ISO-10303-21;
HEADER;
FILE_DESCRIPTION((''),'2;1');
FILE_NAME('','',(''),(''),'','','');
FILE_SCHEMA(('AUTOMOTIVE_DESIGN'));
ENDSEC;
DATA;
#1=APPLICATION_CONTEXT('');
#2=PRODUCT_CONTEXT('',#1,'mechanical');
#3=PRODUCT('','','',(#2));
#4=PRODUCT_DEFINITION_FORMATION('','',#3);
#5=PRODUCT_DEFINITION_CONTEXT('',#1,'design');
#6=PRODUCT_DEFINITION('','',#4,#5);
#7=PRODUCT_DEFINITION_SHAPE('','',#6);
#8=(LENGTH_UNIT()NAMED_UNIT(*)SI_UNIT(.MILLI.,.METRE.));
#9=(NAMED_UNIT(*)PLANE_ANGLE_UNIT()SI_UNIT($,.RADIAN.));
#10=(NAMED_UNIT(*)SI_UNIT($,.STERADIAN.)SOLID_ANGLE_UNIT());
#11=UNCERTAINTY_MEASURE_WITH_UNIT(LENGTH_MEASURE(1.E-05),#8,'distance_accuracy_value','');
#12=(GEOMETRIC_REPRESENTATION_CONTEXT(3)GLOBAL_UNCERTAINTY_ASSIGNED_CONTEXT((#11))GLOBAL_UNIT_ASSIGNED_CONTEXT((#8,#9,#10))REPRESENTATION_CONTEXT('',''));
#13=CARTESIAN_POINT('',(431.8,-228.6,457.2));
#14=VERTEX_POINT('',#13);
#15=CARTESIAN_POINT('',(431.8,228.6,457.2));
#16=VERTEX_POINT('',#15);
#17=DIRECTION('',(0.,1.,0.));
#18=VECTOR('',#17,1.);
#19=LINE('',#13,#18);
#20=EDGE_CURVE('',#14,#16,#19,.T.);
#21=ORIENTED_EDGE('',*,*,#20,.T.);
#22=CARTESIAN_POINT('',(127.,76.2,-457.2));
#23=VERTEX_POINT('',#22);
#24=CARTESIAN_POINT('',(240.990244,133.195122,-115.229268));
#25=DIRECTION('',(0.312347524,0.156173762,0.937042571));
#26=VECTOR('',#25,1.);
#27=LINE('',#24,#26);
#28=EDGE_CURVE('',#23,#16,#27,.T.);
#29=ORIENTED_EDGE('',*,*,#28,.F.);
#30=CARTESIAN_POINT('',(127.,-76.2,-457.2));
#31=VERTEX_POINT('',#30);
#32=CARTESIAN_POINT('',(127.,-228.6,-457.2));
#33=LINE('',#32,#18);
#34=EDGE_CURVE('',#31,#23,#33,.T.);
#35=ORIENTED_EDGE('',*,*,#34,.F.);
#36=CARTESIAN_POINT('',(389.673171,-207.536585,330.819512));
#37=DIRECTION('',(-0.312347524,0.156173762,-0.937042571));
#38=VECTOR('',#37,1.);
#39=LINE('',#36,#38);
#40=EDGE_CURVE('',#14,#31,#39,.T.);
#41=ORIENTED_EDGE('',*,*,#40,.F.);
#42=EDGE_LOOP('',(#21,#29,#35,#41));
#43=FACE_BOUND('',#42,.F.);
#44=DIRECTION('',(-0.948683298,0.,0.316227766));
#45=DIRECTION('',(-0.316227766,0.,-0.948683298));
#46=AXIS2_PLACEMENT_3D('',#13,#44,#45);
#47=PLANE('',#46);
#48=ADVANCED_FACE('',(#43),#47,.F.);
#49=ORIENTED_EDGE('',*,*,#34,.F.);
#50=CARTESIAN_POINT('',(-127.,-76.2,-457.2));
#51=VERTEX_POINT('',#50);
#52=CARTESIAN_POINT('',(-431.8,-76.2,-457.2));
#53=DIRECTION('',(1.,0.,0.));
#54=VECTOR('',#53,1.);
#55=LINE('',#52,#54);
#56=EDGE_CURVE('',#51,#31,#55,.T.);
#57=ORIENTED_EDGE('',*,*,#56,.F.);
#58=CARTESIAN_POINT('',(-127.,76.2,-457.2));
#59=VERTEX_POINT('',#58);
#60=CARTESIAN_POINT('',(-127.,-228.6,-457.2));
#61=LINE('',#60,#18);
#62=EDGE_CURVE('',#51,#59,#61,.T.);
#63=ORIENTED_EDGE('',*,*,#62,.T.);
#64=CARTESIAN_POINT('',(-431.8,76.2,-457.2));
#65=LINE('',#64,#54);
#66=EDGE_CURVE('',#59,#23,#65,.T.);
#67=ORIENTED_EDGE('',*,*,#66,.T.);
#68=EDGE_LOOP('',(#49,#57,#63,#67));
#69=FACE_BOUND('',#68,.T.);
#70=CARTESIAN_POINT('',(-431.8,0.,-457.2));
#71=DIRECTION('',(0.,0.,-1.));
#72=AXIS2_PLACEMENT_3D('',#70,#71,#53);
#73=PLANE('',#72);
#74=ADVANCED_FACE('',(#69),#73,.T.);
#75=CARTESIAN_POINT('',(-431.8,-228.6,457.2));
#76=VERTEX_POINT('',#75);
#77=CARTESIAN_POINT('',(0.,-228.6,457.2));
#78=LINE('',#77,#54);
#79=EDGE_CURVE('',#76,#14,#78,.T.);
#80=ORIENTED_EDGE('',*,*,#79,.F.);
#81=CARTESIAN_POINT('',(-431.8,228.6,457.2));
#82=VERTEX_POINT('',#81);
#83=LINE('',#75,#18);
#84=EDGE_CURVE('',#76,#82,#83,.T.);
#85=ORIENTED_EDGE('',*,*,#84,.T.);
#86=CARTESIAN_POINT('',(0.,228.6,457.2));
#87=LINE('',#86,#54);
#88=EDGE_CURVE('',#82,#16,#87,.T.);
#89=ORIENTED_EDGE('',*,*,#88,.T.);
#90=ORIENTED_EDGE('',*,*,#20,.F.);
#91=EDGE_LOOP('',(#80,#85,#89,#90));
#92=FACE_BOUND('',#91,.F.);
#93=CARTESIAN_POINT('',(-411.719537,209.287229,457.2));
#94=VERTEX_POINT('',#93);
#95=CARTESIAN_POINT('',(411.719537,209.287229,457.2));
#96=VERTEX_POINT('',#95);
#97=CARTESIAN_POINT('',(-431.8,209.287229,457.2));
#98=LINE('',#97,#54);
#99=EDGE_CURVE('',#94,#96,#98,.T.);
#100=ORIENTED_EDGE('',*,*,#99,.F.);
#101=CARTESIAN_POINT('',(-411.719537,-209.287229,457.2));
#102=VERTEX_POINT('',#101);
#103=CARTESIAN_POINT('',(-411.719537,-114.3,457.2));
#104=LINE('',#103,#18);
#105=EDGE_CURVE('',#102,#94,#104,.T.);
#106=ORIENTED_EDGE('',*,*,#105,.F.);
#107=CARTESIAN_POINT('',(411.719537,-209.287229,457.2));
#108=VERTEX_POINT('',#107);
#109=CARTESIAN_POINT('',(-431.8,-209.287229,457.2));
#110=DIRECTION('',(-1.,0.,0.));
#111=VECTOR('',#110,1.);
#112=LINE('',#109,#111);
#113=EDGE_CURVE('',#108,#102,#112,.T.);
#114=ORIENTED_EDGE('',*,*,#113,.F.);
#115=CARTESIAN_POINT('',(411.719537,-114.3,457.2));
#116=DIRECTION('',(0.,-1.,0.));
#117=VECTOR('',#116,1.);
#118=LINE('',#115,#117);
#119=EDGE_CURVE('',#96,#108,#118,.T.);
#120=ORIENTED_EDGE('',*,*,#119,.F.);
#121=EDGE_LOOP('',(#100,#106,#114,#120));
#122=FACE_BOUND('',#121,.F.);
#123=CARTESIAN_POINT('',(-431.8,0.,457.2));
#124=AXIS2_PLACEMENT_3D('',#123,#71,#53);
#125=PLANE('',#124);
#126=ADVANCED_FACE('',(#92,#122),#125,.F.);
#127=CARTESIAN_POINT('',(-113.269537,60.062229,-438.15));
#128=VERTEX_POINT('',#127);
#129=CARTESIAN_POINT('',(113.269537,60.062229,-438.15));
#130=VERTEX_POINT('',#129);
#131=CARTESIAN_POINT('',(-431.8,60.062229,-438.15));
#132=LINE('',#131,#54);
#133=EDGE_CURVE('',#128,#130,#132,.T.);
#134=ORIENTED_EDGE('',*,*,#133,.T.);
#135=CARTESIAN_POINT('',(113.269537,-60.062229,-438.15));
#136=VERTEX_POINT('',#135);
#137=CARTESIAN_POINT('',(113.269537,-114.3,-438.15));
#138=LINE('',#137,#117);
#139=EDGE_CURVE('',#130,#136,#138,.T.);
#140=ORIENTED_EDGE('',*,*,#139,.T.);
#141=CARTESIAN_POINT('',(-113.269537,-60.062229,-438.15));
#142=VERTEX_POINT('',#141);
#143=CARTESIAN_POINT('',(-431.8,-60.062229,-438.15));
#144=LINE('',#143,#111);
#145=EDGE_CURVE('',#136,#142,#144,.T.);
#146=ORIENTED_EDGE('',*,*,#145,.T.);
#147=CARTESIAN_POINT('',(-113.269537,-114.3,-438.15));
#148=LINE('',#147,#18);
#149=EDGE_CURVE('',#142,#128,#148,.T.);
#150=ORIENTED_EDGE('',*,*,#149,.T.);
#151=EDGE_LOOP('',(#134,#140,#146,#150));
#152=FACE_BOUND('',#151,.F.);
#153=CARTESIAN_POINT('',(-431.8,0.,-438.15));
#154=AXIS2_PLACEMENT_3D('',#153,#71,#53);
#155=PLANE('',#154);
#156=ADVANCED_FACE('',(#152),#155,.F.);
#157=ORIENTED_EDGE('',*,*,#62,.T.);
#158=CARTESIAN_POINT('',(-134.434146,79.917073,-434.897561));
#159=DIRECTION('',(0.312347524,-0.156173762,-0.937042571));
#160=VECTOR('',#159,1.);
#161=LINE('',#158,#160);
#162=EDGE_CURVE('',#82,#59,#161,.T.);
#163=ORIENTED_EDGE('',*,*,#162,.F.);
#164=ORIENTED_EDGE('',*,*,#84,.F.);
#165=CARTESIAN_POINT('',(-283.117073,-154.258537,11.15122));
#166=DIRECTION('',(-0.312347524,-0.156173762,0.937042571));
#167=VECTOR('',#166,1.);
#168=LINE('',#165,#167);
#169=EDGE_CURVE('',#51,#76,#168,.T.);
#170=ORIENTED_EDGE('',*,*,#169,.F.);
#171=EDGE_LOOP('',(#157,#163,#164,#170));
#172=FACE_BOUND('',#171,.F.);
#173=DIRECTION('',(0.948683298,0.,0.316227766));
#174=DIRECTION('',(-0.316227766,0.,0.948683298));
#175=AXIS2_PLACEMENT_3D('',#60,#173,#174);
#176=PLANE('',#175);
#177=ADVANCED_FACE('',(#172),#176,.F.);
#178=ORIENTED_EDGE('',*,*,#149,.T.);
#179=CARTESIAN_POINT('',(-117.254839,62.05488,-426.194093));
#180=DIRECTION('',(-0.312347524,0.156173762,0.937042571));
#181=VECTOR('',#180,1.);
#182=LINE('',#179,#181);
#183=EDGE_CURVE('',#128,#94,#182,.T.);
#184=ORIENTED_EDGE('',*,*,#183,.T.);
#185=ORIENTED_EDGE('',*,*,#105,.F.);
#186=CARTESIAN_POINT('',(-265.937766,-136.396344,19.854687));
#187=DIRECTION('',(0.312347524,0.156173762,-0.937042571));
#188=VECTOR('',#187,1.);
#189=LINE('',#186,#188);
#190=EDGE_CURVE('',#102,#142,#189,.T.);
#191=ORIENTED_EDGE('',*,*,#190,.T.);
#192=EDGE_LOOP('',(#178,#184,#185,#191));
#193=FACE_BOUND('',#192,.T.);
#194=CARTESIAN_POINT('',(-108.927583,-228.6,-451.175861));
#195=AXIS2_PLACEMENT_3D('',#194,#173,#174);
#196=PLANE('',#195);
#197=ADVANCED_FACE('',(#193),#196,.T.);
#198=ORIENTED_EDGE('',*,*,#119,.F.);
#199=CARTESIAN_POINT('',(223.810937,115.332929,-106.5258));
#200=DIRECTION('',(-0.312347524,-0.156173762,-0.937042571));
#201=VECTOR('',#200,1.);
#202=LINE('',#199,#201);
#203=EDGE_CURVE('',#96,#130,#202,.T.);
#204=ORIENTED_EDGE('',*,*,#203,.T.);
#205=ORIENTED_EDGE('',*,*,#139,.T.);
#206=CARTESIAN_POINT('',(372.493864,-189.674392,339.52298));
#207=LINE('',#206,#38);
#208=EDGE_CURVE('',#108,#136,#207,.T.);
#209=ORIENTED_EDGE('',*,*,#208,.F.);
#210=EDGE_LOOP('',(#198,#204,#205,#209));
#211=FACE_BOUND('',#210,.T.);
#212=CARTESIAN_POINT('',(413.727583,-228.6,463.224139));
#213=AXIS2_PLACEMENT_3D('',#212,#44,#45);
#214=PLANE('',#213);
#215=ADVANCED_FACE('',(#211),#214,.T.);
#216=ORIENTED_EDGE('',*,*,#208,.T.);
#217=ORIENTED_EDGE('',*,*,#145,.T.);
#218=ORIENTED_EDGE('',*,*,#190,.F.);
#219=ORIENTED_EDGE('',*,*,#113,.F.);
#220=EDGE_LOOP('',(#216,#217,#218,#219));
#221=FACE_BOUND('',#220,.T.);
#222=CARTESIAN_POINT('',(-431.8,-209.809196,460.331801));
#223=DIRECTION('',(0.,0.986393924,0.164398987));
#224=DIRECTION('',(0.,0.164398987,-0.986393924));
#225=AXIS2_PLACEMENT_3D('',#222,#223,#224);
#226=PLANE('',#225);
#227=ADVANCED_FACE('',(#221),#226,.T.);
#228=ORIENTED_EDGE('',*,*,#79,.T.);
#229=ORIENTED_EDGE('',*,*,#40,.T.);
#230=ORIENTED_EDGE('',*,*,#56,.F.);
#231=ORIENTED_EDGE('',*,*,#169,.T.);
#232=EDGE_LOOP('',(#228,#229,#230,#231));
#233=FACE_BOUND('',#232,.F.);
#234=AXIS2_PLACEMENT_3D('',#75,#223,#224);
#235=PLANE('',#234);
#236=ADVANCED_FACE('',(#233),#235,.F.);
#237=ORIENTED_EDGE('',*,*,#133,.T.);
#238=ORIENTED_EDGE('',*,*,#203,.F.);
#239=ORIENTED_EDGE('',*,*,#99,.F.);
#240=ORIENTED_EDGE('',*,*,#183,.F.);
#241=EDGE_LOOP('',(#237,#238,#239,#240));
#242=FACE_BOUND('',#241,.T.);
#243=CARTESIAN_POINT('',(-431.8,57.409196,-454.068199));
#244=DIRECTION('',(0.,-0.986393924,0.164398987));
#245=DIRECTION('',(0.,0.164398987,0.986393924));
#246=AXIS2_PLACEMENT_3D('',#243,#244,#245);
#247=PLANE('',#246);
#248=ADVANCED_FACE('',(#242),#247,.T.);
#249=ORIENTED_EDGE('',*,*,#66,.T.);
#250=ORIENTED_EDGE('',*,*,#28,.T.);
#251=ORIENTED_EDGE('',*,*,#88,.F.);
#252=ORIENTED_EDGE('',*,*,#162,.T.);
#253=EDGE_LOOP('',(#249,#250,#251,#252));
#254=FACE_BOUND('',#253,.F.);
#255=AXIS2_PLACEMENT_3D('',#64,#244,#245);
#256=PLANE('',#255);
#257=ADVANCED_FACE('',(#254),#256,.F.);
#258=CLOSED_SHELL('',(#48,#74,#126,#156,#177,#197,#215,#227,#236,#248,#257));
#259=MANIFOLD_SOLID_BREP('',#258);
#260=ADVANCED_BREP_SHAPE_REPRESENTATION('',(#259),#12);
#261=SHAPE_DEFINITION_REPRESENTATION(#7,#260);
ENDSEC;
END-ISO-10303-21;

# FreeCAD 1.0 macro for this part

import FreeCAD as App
import Part
import Sketcher
Q = App.Units.Quantity


def faces_at(feature, points):
    """Names of the faces that lie closest to the given points."""
    faces = feature.Shape.Faces
    near = lambda p: min(range(len(faces)), key=lambda i: faces[i].distToShape(Part.Vertex(*p))[0])
    return sorted({f"Face{near(p) + 1}" for p in points})


def add_polygon(sketch, points):
    """Adds a closed chain of lines whose ends are joined by coincident constraints."""
    first, n = sketch.GeometryCount, len(points)
    for a, b in zip(points, points[1:] + points[:1]):
        sketch.addGeometry(Part.LineSegment(App.Vector(*a, 0), App.Vector(*b, 0)), False)
    for i in range(n):
        sketch.addConstraint(Sketcher.Constraint("Coincident", first + i, 2, first + (i + 1) % n, 1))

doc = App.newDocument("Part")
params = doc.addObject("Spreadsheet::Sheet", "Params")
for row, (alias, value) in enumerate([
    ("sketch1_width", "34 in"),
    ("sketch1_height", "36 in"),
    ("pad1_length", "18 in"),
    ("sketch2_width", "12 in"),
    ("sketch2_height", "36 in"),
    ("sketch3_width", "6 in"),
    ("sketch3_height", "36 in"),
    ("thickness_wall", "0.75 in"),
], start=1):
    params.set(f"A{row}", alias)
    params.set(f"B{row}", "=" + value)
    params.setAlias(f"B{row}", alias)

body = doc.addObject("PartDesign::Body", "Body")

# Sketch on XZ plane
sketch1 = body.newObject("Sketcher::SketchObject", "Sketch")
sketch1.AttachmentSupport = (doc.getObject("XZ_Plane"), [""])
sketch1.MapMode = "FlatFace"
add_polygon(sketch1, [(-432, 457), (-432, -457), (432, -457), (432, 457)])  # lines 0-3
sketch1.addConstraint([
    Sketcher.Constraint("Vertical", 0),
    Sketcher.Constraint("Horizontal", 1),
    Sketcher.Constraint("Vertical", 2),
    Sketcher.Constraint("Horizontal", 3),
    Sketcher.Constraint("Symmetric", 0, 2, 2, 2, -1, 1),
    Sketcher.Constraint("DistanceX", 1, 1, 1, 2, Q("34 in")),
    Sketcher.Constraint("DistanceY", 0, 2, 0, 1, Q("36 in")),
])
sketch1.setExpression("Constraints[9]", "Params.sketch1_width")
sketch1.setExpression("Constraints[10]", "Params.sketch1_height")
pad1 = body.newObject("PartDesign::Pad", "Pad")
pad1.Profile = sketch1
pad1.setExpression("Length", "Params.pad1_length")
pad1.Midplane = True

# Sketch on XZ plane
sketch2 = body.newObject("Sketcher::SketchObject", "Sketch001")
sketch2.AttachmentSupport = (doc.getObject("XZ_Plane"), [""])
sketch2.MapMode = "FlatFace"
sketch2.AttachmentOffset = App.Placement(App.Vector(0, 0, 9 * 25.4), App.Rotation())
add_polygon(sketch2, [(-127, -457), (-432, 457), (-432, -457)])  # lines 0-2
add_polygon(sketch2, [(432, -457), (432, 457), (127, -457)])  # lines 3-5
sketch2.addConstraint([
    Sketcher.Constraint("Vertical", 1),
    Sketcher.Constraint("Horizontal", 2),
    Sketcher.Constraint("Vertical", 3),
    Sketcher.Constraint("Horizontal", 5),
    Sketcher.Constraint("Symmetric", 1, 2, 3, 2, -1, 1),
    Sketcher.Constraint("Symmetric", 2, 2, 4, 2, -2),
    Sketcher.Constraint("Horizontal", 0, 2, 3, 2),
    Sketcher.Constraint("DistanceX", 2, 1, 2, 2, Q("12 in")),
    Sketcher.Constraint("DistanceY", 1, 2, 1, 1, Q("36 in")),
    Sketcher.Constraint("DistanceX", 0, 2, -1, 1, Q("17 in")),
])
sketch2.setExpression("Constraints[13]", "Params.sketch2_width")
sketch2.setExpression("Constraints[14]", "Params.sketch2_height")
pocket1 = body.newObject("PartDesign::Pocket", "Pocket")
pocket1.Profile = sketch2
pocket1.Type = "ThroughAll"

# Sketch on YZ plane
sketch3 = body.newObject("Sketcher::SketchObject", "Sketch002")
sketch3.AttachmentSupport = (doc.getObject("YZ_Plane"), [""])
sketch3.MapMode = "FlatFace"
sketch3.AttachmentOffset = App.Placement(App.Vector(0, 0, -17 * 25.4), App.Rotation())
add_polygon(sketch3, [(76, -457), (229, 457), (229, -457)])  # lines 0-2
add_polygon(sketch3, [(-229, -457), (-229, 457), (-76, -457)])  # lines 3-5
sketch3.addConstraint([
    Sketcher.Constraint("Vertical", 1),
    Sketcher.Constraint("Horizontal", 2),
    Sketcher.Constraint("Vertical", 3),
    Sketcher.Constraint("Horizontal", 5),
    Sketcher.Constraint("Symmetric", 1, 2, 3, 2, -1, 1),
    Sketcher.Constraint("Symmetric", 2, 2, 4, 2, -2),
    Sketcher.Constraint("Horizontal", 0, 2, 3, 2),
    Sketcher.Constraint("DistanceX", 2, 2, 2, 1, Q("6 in")),
    Sketcher.Constraint("DistanceY", 1, 2, 1, 1, Q("36 in")),
    Sketcher.Constraint("DistanceX", -1, 1, 0, 2, Q("9 in")),
])
sketch3.setExpression("Constraints[13]", "Params.sketch3_width")
sketch3.setExpression("Constraints[14]", "Params.sketch3_height")
pocket2 = body.newObject("PartDesign::Pocket", "Pocket001")
pocket2.Profile = sketch3
pocket2.Type = "ThroughAll"
pocket2.Reversed = True
doc.recompute()

thickness = body.newObject("PartDesign::Thickness", "Thickness")
thickness.Base = (pocket2, faces_at(pocket2, [(0, 0, 457.2)]))
thickness.setExpression("Value", "Params.thickness_wall")
thickness.Reversed = True
thickness.Join = "Arc"

doc.recompute()
